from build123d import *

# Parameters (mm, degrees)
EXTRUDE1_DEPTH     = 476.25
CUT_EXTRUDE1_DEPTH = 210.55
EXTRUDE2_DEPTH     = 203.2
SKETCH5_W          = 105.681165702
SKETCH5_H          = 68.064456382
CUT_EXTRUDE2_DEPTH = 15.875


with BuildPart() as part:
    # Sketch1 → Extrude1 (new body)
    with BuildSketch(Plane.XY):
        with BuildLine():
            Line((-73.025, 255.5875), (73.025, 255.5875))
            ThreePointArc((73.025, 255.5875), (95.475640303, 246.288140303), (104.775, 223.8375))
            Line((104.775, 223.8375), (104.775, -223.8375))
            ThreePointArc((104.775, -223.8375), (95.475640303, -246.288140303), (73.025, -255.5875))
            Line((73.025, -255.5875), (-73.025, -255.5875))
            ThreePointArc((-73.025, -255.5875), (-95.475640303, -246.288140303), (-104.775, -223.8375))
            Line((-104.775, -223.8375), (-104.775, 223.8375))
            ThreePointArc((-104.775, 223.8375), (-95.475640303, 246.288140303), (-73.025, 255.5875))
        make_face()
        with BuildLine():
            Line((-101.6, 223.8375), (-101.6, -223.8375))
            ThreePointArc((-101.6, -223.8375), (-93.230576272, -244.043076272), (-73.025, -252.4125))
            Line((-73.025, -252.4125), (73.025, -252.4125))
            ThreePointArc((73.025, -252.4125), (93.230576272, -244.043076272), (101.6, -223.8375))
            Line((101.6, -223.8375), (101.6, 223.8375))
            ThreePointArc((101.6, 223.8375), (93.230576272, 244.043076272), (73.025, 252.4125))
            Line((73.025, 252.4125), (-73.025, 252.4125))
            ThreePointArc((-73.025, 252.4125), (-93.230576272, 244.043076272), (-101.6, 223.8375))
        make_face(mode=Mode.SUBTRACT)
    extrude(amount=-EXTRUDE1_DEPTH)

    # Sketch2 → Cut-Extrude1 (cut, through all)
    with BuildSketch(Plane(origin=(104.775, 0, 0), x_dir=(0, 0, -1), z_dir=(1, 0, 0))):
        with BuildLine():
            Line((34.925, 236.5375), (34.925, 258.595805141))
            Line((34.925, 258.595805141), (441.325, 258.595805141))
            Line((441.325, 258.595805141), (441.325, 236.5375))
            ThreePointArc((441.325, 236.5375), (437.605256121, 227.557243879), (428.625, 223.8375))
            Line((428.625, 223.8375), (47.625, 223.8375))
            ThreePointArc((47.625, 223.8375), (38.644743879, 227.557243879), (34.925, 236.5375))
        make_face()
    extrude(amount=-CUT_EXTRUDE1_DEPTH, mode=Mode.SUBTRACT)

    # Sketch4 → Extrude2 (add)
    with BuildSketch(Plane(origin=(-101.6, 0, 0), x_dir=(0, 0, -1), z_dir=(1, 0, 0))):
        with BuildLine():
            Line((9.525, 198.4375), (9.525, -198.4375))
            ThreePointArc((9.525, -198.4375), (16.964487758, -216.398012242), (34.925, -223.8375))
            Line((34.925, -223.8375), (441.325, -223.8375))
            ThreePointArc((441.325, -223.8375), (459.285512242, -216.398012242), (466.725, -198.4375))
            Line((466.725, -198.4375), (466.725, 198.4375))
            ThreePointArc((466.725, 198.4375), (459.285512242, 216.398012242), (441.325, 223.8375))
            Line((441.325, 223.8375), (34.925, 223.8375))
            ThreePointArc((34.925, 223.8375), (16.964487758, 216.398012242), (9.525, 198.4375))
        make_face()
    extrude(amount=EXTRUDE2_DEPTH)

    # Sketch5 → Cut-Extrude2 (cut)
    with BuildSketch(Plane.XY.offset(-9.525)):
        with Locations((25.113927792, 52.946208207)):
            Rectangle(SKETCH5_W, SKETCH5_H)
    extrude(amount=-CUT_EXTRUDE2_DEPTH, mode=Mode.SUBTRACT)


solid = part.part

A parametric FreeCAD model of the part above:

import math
import FreeCAD as App
import Part
import Sketcher
from FreeCAD import Vector
Q = App.Units.Quantity

doc = App.newDocument("Part")
body = doc.addObject("PartDesign::Body", "Body")

# Sketch on XY plane
sketch1 = body.newObject("Sketcher::SketchObject", "Sketch")
sketch1.AttachmentSupport = (doc.getObject("XY_Plane"), [""])
sketch1.MapMode = "FlatFace"
sketch1.addGeometry([
    Part.LineSegment(Vector(73, 256, 0), Vector(-73, 256, 0)),  # 0
    Part.ArcOfCircle(Part.Circle(Vector(-73, 224, 0), Vector(0, 0, 1), 32), math.radians(90), math.radians(180)),  # 1
    Part.LineSegment(Vector(-105, 224, 0), Vector(-105, -224, 0)),  # 2
    Part.ArcOfCircle(Part.Circle(Vector(-73, -224, 0), Vector(0, 0, 1), 32), math.radians(180), math.radians(270)),  # 3
    Part.LineSegment(Vector(-73, -256, 0), Vector(73, -256, 0)),  # 4
    Part.ArcOfCircle(Part.Circle(Vector(73, -224, 0), Vector(0, 0, 1), 32), math.radians(-90), math.radians(0)),  # 5
    Part.LineSegment(Vector(105, -224, 0), Vector(105, 224, 0)),  # 6
    Part.ArcOfCircle(Part.Circle(Vector(73, 224, 0), Vector(0, 0, 1), 32), math.radians(0), math.radians(90)),  # 7
    Part.ArcOfCircle(Part.Circle(Vector(-73, 224, 0), Vector(0, 0, 1), 29), math.radians(90), math.radians(180)),  # 8
    Part.LineSegment(Vector(-73, 252, 0), Vector(73, 252, 0)),  # 9
    Part.ArcOfCircle(Part.Circle(Vector(73, 224, 0), Vector(0, 0, 1), 29), math.radians(0), math.radians(90)),  # 10
    Part.LineSegment(Vector(102, 224, 0), Vector(102, -224, 0)),  # 11
    Part.ArcOfCircle(Part.Circle(Vector(73, -224, 0), Vector(0, 0, 1), 29), math.radians(-90), math.radians(0)),  # 12
    Part.LineSegment(Vector(73, -252, 0), Vector(-73, -252, 0)),  # 13
    Part.ArcOfCircle(Part.Circle(Vector(-73, -224, 0), Vector(0, 0, 1), 29), math.radians(-180), math.radians(-90)),  # 14
    Part.LineSegment(Vector(-102, -224, 0), Vector(-102, 224, 0)),  # 15
], False)
sketch1.addConstraint([
    Sketcher.Constraint("Tangent", 0, 2, 1, 1),
    Sketcher.Constraint("Tangent", 1, 2, 2, 1),
    Sketcher.Constraint("Tangent", 2, 2, 3, 1),
    Sketcher.Constraint("Tangent", 3, 2, 4, 1),
    Sketcher.Constraint("Tangent", 4, 2, 5, 1),
    Sketcher.Constraint("Tangent", 5, 2, 6, 1),
    Sketcher.Constraint("Tangent", 6, 2, 7, 1),
    Sketcher.Constraint("Tangent", 7, 2, 0, 1),
    Sketcher.Constraint("Tangent", 8, 1, 9, 1),
    Sketcher.Constraint("Tangent", 9, 2, 10, 2),
    Sketcher.Constraint("Tangent", 10, 1, 11, 1),
    Sketcher.Constraint("Tangent", 11, 2, 12, 2),
    Sketcher.Constraint("Tangent", 12, 1, 13, 1),
    Sketcher.Constraint("Tangent", 13, 2, 14, 2),
    Sketcher.Constraint("Tangent", 14, 1, 15, 1),
    Sketcher.Constraint("Tangent", 15, 2, 8, 2),
    Sketcher.Constraint("Horizontal", 0),
    Sketcher.Constraint("Vertical", 2),
    Sketcher.Constraint("Horizontal", 4),
    Sketcher.Constraint("Vertical", 6),
    Sketcher.Constraint("Horizontal", 9),
    Sketcher.Constraint("Vertical", 11),
    Sketcher.Constraint("Horizontal", 13),
    Sketcher.Constraint("Vertical", 15),
    Sketcher.Constraint("Coincident", 8, 3, 1, 3),
    Sketcher.Constraint("Coincident", 10, 3, 7, 3),
    Sketcher.Constraint("Coincident", 12, 3, 5, 3),
    Sketcher.Constraint("Equal", 1, 3),
    Sketcher.Constraint("Equal", 3, 5),
    Sketcher.Constraint("Equal", 5, 7),
    Sketcher.Constraint("Equal", 12, 14),
    Sketcher.Constraint("Symmetric", 1, 3, 5, 3, -1, 1),
    Sketcher.Constraint("Radius", 1, Q("1.25 in")),
    Sketcher.Constraint("DistanceX", -1, 1, 10, 1, Q("4 in")),
    Sketcher.Constraint("Radius", 8, Q("1.125 in")),
    Sketcher.Constraint("DistanceY", 2, 2, 2, 1, Q("17.625 in")),
])
pad1 = body.newObject("PartDesign::Pad", "Pad")
pad1.Profile = sketch1
pad1.Length = Q("18.75 in")
pad1.Reversed = True

# Sketch on YZ plane
sketch2 = body.newObject("Sketcher::SketchObject", "Sketch001")
sketch2.AttachmentSupport = (doc.getObject("YZ_Plane"), [""])
sketch2.MapMode = "FlatFace"
sketch2.AttachmentOffset = App.Placement(Vector(0, 0, 4.125 * 25.4), App.Rotation())
sketch2.addGeometry([
    Part.LineSegment(Vector(259, -35, 0), Vector(237, -35, 0)),  # 0
    Part.ArcOfCircle(Part.Circle(Vector(237, -48, 0), Vector(0, 0, 1), 13), math.radians(90), math.radians(180)),  # 1
    Part.LineSegment(Vector(224, -48, 0), Vector(224, -429, 0)),  # 2
    Part.ArcOfCircle(Part.Circle(Vector(237, -429, 0), Vector(0, 0, 1), 13), math.radians(180), math.radians(270)),  # 3
    Part.LineSegment(Vector(237, -441, 0), Vector(259, -441, 0)),  # 4
    Part.LineSegment(Vector(259, -441, 0), Vector(259, -35, 0)),  # 5
], False)
sketch2.addConstraint([
    Sketcher.Constraint("Tangent", 0, 2, 1, 1),
    Sketcher.Constraint("Tangent", 1, 2, 2, 1),
    Sketcher.Constraint("Tangent", 2, 2, 3, 1),
    Sketcher.Constraint("Tangent", 3, 2, 4, 1),
    Sketcher.Constraint("Coincident", 4, 2, 5, 1),
    Sketcher.Constraint("Coincident", 5, 2, 0, 1),
    Sketcher.Constraint("Horizontal", 0),
    Sketcher.Constraint("Vertical", 2),
    Sketcher.Constraint("Horizontal", 4),
    Sketcher.Constraint("Vertical", 5),
    Sketcher.Constraint("Equal", 1, 3),
    Sketcher.Constraint("Radius", 1, Q("0.5 in")),
    Sketcher.Constraint("DistanceY", 2, 2, 2, 1, Q("15 in")),
    Sketcher.Constraint("DistanceX", -1, 1, 1, 3, Q("9.3125 in")),
    Sketcher.Constraint("DistanceY", 1, 3, -1, 1, Q("1.875 in")),
    Sketcher.Constraint("DistanceX", 0, 2, 0, 1, 22.058305),
])
pocket1 = body.newObject("PartDesign::Pocket", "Pocket")
pocket1.Profile = sketch2
pocket1.Type = "ThroughAll"

# Sketch on YZ plane
sketch3 = body.newObject("Sketcher::SketchObject", "Sketch002")
sketch3.AttachmentSupport = (doc.getObject("YZ_Plane"), [""])
sketch3.MapMode = "FlatFace"
sketch3.AttachmentOffset = App.Placement(Vector(0, 0, -4 * 25.4), App.Rotation())
sketch3.addGeometry([
    Part.LineSegment(Vector(198, -10, 0), Vector(-198, -10, 0)),  # 0
    Part.ArcOfCircle(Part.Circle(Vector(-198, -35, 0), Vector(0, 0, 1), 25), math.radians(90), math.radians(180)),  # 1
    Part.LineSegment(Vector(-224, -35, 0), Vector(-224, -441, 0)),  # 2
    Part.ArcOfCircle(Part.Circle(Vector(-198, -441, 0), Vector(0, 0, 1), 25), math.radians(180), math.radians(270)),  # 3
    Part.LineSegment(Vector(-198, -467, 0), Vector(198, -467, 0)),  # 4
    Part.ArcOfCircle(Part.Circle(Vector(198, -441, 0), Vector(0, 0, 1), 25), math.radians(-90), math.radians(0)),  # 5
    Part.LineSegment(Vector(224, -441, 0), Vector(224, -35, 0)),  # 6
    Part.ArcOfCircle(Part.Circle(Vector(198, -35, 0), Vector(0, 0, 1), 25), math.radians(0), math.radians(90)),  # 7
], False)
sketch3.addConstraint([
    Sketcher.Constraint("Tangent", 0, 2, 1, 1),
    Sketcher.Constraint("Tangent", 1, 2, 2, 1),
    Sketcher.Constraint("Tangent", 2, 2, 3, 1),
    Sketcher.Constraint("Tangent", 3, 2, 4, 1),
    Sketcher.Constraint("Tangent", 4, 2, 5, 1),
    Sketcher.Constraint("Tangent", 5, 2, 6, 1),
    Sketcher.Constraint("Tangent", 6, 2, 7, 1),
    Sketcher.Constraint("Tangent", 7, 2, 0, 1),
    Sketcher.Constraint("Horizontal", 0),
    Sketcher.Constraint("Vertical", 2),
    Sketcher.Constraint("Horizontal", 4),
    Sketcher.Constraint("Vertical", 6),
    Sketcher.Constraint("Equal", 1, 3),
    Sketcher.Constraint("Equal", 3, 5),
    Sketcher.Constraint("Equal", 5, 7),
    Sketcher.Constraint("Radius", 1, Q("1 in")),
    Sketcher.Constraint("DistanceY", 2, 2, 2, 1, Q("16 in")),
    Sketcher.Constraint("DistanceX", 0, 2, 0, 1, Q("15.625 in")),
    Sketcher.Constraint("DistanceX", 1, 3, -1, 1, Q("7.8125 in")),
    Sketcher.Constraint("DistanceY", 1, 3, -1, 1, Q("1.375 in")),
])
pad2 = body.newObject("PartDesign::Pad", "Pad001")
pad2.Profile = sketch3
pad2.Length = Q("8 in")

# Sketch on XY plane
sketch4 = body.newObject("Sketcher::SketchObject", "Sketch003")
sketch4.AttachmentSupport = (doc.getObject("XY_Plane"), [""])
sketch4.MapMode = "FlatFace"
sketch4.AttachmentOffset = App.Placement(Vector(0, 0, -0.375 * 25.4), App.Rotation())
sketch4.addGeometry([
    Part.LineSegment(Vector(-28, 87, 0), Vector(-28, 19, 0)),
    Part.LineSegment(Vector(-28, 19, 0), Vector(78, 19, 0)),
    Part.LineSegment(Vector(78, 19, 0), Vector(78, 87, 0)),
    Part.LineSegment(Vector(78, 87, 0), Vector(-28, 87, 0)),
], False)
sketch4.addConstraint([
    Sketcher.Constraint("Coincident", 0, 2, 1, 1),
    Sketcher.Constraint("Coincident", 1, 2, 2, 1),
    Sketcher.Constraint("Coincident", 2, 2, 3, 1),
    Sketcher.Constraint("Coincident", 3, 2, 0, 1),
    Sketcher.Constraint("Vertical", 0),
    Sketcher.Constraint("Horizontal", 1),
    Sketcher.Constraint("Vertical", 2),
    Sketcher.Constraint("Horizontal", 3),
    Sketcher.Constraint("DistanceX", 1, 1, 1, 2, 105.681166),
    Sketcher.Constraint("DistanceY", 0, 2, 0, 1, 68.064456),
    Sketcher.Constraint("DistanceY", -1, 1, 0, 2, 18.91398),
    Sketcher.Constraint("DistanceX", -1, 1, 1, 2, 77.954511),
])
pocket2 = body.newObject("PartDesign::Pocket", "Pocket001")
pocket2.Profile = sketch4
pocket2.Length = Q("0.625 in")

doc.recompute()
